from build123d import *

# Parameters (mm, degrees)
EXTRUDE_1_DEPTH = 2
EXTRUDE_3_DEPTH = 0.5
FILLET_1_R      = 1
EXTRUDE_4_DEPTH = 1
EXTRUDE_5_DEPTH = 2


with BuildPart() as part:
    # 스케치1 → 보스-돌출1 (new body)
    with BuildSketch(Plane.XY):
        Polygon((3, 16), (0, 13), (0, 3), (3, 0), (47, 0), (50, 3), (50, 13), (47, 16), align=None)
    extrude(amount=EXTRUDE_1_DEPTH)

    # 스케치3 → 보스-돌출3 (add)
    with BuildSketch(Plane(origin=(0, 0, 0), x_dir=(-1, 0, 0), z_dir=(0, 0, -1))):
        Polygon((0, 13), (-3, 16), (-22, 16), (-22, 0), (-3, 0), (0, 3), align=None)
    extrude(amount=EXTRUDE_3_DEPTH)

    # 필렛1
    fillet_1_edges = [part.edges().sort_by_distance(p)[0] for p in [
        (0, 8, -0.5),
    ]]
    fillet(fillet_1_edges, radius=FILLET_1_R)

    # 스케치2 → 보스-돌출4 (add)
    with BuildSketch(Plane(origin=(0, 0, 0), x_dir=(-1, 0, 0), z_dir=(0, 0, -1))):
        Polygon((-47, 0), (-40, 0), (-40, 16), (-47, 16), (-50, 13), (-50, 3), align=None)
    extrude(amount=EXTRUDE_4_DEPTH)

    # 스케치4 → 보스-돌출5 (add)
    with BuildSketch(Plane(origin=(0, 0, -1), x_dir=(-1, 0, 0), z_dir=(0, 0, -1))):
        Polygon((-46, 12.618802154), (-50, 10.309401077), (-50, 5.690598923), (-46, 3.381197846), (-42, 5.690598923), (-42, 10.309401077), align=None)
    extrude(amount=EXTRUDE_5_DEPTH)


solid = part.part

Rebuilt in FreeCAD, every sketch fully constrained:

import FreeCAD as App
import Part
import Sketcher

V = App.Vector
Q = App.Units.Quantity


def edges_at(feature, points):
    """Names of the edges that pass closest to the given points."""
    edges = feature.Shape.Edges
    near = lambda p: min(range(len(edges)), key=lambda i: edges[i].distToShape(Part.Vertex(*p))[0])
    return sorted({f"Edge{near(p) + 1}" for p in points})


def add_polygon(sketch, points):
    """Adds a closed chain of lines whose ends are joined by coincident constraints."""
    first, n = sketch.GeometryCount, len(points)
    for a, b in zip(points, points[1:] + points[:1]):
        sketch.addGeometry(Part.LineSegment(App.Vector(*a, 0), App.Vector(*b, 0)), False)
    for i in range(n):
        sketch.addConstraint(Sketcher.Constraint("Coincident", first + i, 2, first + (i + 1) % n, 1))

doc = App.newDocument("Part")
body = doc.addObject("PartDesign::Body", "Body")

# Sketch on XY plane
sketch1 = body.newObject("Sketcher::SketchObject", "Sketch")
sketch1.AttachmentSupport = (doc.getObject("XY_Plane"), [""])
sketch1.MapMode = "FlatFace"
add_polygon(sketch1, [(3, 16), (0, 13), (0, 3), (3, 0), (47, 0), (50, 3), (50, 13), (47, 16)])  # lines 0-7
sketch1.addConstraint(Sketcher.Constraint("Vertical", 1))
sketch1.addConstraint(Sketcher.Constraint("Horizontal", 3))
sketch1.addConstraint(Sketcher.Constraint("Vertical", 5))
sketch1.addConstraint(Sketcher.Constraint("Horizontal", 7))
sketch1.addConstraint(Sketcher.Constraint("PointOnObject", 0, 2, -2))
sketch1.addConstraint(Sketcher.Constraint("PointOnObject", 2, 2, -1))
sketch1.addConstraint(Sketcher.Constraint("Perpendicular", 0, 2))
sketch1.addConstraint(Sketcher.Constraint("Perpendicular", 2, 4))
sketch1.addConstraint(Sketcher.Constraint("Perpendicular", 4, 6))
sketch1.addConstraint(Sketcher.Constraint("Horizontal", 1, 2, 4, 2))
sketch1.addConstraint(Sketcher.Constraint("Horizontal", 0, 2, 5, 2))
sketch1.addConstraint(Sketcher.Constraint("Vertical", 3, 2, 6, 2))
sketch1.addConstraint(Sketcher.Constraint("Vertical", 2, 2, 7, 2))
sketch1.addConstraint(Sketcher.Constraint("DistanceX", 3, 1, 3, 2, Q("44 mm")))
sketch1.addConstraint(Sketcher.Constraint("DistanceY", 1, 2, 1, 1, Q("10 mm")))
sketch1.addConstraint(Sketcher.Constraint("DistanceY", -1, 1, 0, 2, Q("13 mm")))
pad1 = body.newObject("PartDesign::Pad", "Pad")
pad1.Profile = sketch1
pad1.Length = 2

# Sketch on XY plane
sketch2 = body.newObject("Sketcher::SketchObject", "Sketch001")
sketch2.AttachmentSupport = (doc.getObject("XY_Plane"), [""])
sketch2.MapMode = "FlatFace"
add_polygon(sketch2, [(0, 13), (3, 16), (22, 16), (22, 0), (3, 0), (0, 3)])  # lines 0-5
sketch2.addConstraint(Sketcher.Constraint("Horizontal", 1))
sketch2.addConstraint(Sketcher.Constraint("Vertical", 2))
sketch2.addConstraint(Sketcher.Constraint("Horizontal", 3))
sketch2.addConstraint(Sketcher.Constraint("Vertical", 5))
sketch2.addConstraint(Sketcher.Constraint("PointOnObject", 2, 2, -1))
sketch2.addConstraint(Sketcher.Constraint("PointOnObject", 4, 2, -2))
sketch2.addConstraint(Sketcher.Constraint("Perpendicular", 0, 4))
sketch2.addConstraint(Sketcher.Constraint("Vertical", 0, 2, 3, 2))
sketch2.addConstraint(Sketcher.Constraint("Equal", 0, 4))
sketch2.addConstraint(Sketcher.Constraint("DistanceX", 1, 1, 1, 2, Q("19 mm")))
sketch2.addConstraint(Sketcher.Constraint("DistanceY", 2, 2, 2, 1, Q("16 mm")))
sketch2.addConstraint(Sketcher.Constraint("DistanceY", 5, 1, 5, 2, Q("10 mm")))
pad2 = body.newObject("PartDesign::Pad", "Pad001")
pad2.Profile = sketch2
pad2.Length = 0.5
pad2.Reversed = True
doc.recompute()

fillet = body.newObject("PartDesign::Fillet", "Fillet")
fillet.Base = (pad2, edges_at(pad2, [(0, 8, -0.5)]))
fillet.Radius = 1

# Sketch on XY plane
sketch3 = body.newObject("Sketcher::SketchObject", "Sketch002")
sketch3.AttachmentSupport = (doc.getObject("XY_Plane"), [""])
sketch3.MapMode = "FlatFace"
add_polygon(sketch3, [(47, 0), (40, 0), (40, 16), (47, 16), (50, 13), (50, 3)])  # lines 0-5
sketch3.addConstraint(Sketcher.Constraint("Horizontal", 0))
sketch3.addConstraint(Sketcher.Constraint("Vertical", 1))
sketch3.addConstraint(Sketcher.Constraint("Horizontal", 2))
sketch3.addConstraint(Sketcher.Constraint("Vertical", 4))
sketch3.addConstraint(Sketcher.Constraint("PointOnObject", 0, 2, -1))
sketch3.addConstraint(Sketcher.Constraint("Perpendicular", 3, 5))
sketch3.addConstraint(Sketcher.Constraint("Vertical", 2, 2, 5, 2))
sketch3.addConstraint(Sketcher.Constraint("Equal", 3, 5))
sketch3.addConstraint(Sketcher.Constraint("DistanceX", 0, 2, 0, 1, Q("7 mm")))
sketch3.addConstraint(Sketcher.Constraint("DistanceY", 1, 1, 1, 2, Q("16 mm")))
sketch3.addConstraint(Sketcher.Constraint("DistanceY", 4, 2, 4, 1, Q("10 mm")))
sketch3.addConstraint(Sketcher.Constraint("DistanceX", -1, 1, 0, 2, Q("40 mm")))
pad3 = body.newObject("PartDesign::Pad", "Pad002")
pad3.Profile = sketch3
pad3.Length = 1
pad3.Reversed = True

# Sketch on XY plane
sketch4 = body.newObject("Sketcher::SketchObject", "Sketch003")
sketch4.AttachmentSupport = (doc.getObject("XY_Plane"), [""])
sketch4.MapMode = "FlatFace"
sketch4.AttachmentOffset = App.Placement(V(0, 0, -1), App.Rotation())
add_polygon(sketch4, [(46, 12.6), (50, 10.3), (50, 5.7), (46, 3.4), (42, 5.7), (42, 10.3)])  # lines 0-5
sketch4.addConstraint(Sketcher.Constraint("Vertical", 1))
sketch4.addConstraint(Sketcher.Constraint("Vertical", 4))
sketch4.addConstraint(Sketcher.Constraint("Parallel", 0, 3))
sketch4.addConstraint(Sketcher.Constraint("Parallel", 2, 5))
sketch4.addConstraint(Sketcher.Constraint("Horizontal", 1, 2, 3, 2))
sketch4.addConstraint(Sketcher.Constraint("Horizontal", 0, 2, 4, 2))
sketch4.addConstraint(Sketcher.Constraint("Vertical", 2, 2, 5, 2))
sketch4.addConstraint(Sketcher.Constraint("Angle", 0, Q("-30 deg")))
sketch4.addConstraint(Sketcher.Constraint("DistanceX", -1, 1, 0, 2, Q("50 mm")))
sketch4.addConstraint(Sketcher.Constraint("DistanceX", -1, 1, 2, 2, Q("46 mm")))
sketch4.addConstraint(Sketcher.Constraint("DistanceY", -1, 1, 0, 2, Q("10.309401 mm")))
sketch4.addConstraint(Sketcher.Constraint("DistanceY", -1, 1, 1, 2, Q("5.690599 mm")))
pad4 = body.newObject("PartDesign::Pad", "Pad003")
pad4.Profile = sketch4
pad4.Length = 2
pad4.Reversed = True

doc.recompute()
